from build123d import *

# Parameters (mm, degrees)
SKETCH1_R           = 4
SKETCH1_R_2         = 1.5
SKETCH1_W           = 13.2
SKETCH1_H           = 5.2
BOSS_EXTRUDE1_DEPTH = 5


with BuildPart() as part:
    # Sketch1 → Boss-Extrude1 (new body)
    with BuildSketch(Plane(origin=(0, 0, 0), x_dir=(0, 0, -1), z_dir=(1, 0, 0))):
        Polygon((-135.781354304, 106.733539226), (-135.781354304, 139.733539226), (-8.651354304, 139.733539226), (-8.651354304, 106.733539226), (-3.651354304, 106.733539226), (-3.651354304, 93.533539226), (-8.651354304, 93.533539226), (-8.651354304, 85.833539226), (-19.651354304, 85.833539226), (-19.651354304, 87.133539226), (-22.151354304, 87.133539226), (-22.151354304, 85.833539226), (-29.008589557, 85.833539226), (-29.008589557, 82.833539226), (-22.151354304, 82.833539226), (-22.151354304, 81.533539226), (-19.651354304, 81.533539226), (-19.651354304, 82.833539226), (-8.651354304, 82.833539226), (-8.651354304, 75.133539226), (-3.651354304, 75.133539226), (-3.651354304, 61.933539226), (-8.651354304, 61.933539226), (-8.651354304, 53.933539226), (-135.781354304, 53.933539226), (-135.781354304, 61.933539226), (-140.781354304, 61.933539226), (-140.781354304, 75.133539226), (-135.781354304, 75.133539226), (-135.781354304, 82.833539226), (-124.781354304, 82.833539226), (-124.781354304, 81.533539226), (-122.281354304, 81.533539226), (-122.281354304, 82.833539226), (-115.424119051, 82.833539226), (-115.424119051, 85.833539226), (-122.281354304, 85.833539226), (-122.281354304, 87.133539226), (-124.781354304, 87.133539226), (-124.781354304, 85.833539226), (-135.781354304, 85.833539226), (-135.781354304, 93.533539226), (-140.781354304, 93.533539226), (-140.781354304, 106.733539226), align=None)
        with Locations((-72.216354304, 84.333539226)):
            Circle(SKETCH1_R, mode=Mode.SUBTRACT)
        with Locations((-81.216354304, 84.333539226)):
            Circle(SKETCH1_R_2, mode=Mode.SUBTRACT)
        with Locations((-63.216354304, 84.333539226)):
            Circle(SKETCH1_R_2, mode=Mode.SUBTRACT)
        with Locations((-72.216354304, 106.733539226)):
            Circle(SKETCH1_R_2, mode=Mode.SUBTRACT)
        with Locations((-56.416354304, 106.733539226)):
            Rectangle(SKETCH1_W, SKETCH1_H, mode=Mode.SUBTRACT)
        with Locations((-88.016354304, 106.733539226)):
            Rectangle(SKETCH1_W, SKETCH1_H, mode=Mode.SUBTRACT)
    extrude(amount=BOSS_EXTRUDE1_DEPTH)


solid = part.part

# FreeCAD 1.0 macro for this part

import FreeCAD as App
import Part
import Sketcher
Q = App.Units.Quantity


def add_polygon(sketch, points):
    """Adds a closed chain of lines whose ends are joined by coincident constraints."""
    first, n = sketch.GeometryCount, len(points)
    for a, b in zip(points, points[1:] + points[:1]):
        sketch.addGeometry(Part.LineSegment(App.Vector(*a, 0), App.Vector(*b, 0)), False)
    for i in range(n):
        sketch.addConstraint(Sketcher.Constraint("Coincident", first + i, 2, first + (i + 1) % n, 1))

doc = App.newDocument("Part")
body = doc.addObject("PartDesign::Body", "Body")

sketch1 = body.newObject("Sketcher::SketchObject", "Sketch")
sketch1.AttachmentSupport = (doc.getObject("YZ_Plane"), [""])
sketch1.MapMode = "FlatFace"
add_polygon(sketch1, [(139.7, 135.8), (106.7, 135.8), (106.7, 140.8), (93.5, 140.8), (93.5, 135.8), (85.8, 135.8), (85.8, 124.8), (87.1, 124.8), (87.1, 122.3), (85.8, 122.3), (85.8, 115.4), (82.8, 115.4), (82.8, 122.3), (81.5, 122.3), (81.5, 124.8), (82.8, 124.8), (82.8, 135.8), (75.1, 135.8), (75.1, 140.8), (61.9, 140.8), (61.9, 135.8), (53.9, 135.8), (53.9, 8.7), (61.9, 8.7), (61.9, 3.7), (75.1, 3.7), (75.1, 8.7), (82.8, 8.7), (82.8, 19.7), (81.5, 19.7), (81.5, 22.2), (82.8, 22.2), (82.8, 29), (85.8, 29), (85.8, 22.2), (87.1, 22.2), (87.1, 19.7), (85.8, 19.7), (85.8, 8.7), (93.5, 8.7), (93.5, 3.7), (106.7, 3.7), (106.7, 8.7), (139.7, 8.7)])
sketch1.addGeometry(Part.Circle(App.Vector(84.3, 63.2, 0), App.Vector(0, 0, 1), 1.5), False)
sketch1.addGeometry(Part.Circle(App.Vector(84.3, 72.2, 0), App.Vector(0, 0, 1), 4), False)
sketch1.addGeometry(Part.Circle(App.Vector(84.3, 81.2, 0), App.Vector(0, 0, 1), 1.5), False)
add_polygon(sketch1, [(104.1, 63), (109.3, 63), (109.3, 49.8), (104.1, 49.8)])
sketch1.addGeometry(Part.Circle(App.Vector(106.7, 72.2, 0), App.Vector(0, 0, 1), 1.5), False)
add_polygon(sketch1, [(104.1, 94.6), (109.3, 94.6), (109.3, 81.4), (104.1, 81.4)])
sketch1.addConstraint([
    Sketcher.Constraint("Horizontal", 0),
    Sketcher.Constraint("Vertical", 1),
    Sketcher.Constraint("Horizontal", 2),
    Sketcher.Constraint("Vertical", 3),
    Sketcher.Constraint("Horizontal", 4),
    Sketcher.Constraint("Vertical", 5),
    Sketcher.Constraint("Horizontal", 6),
    Sketcher.Constraint("Vertical", 7),
    Sketcher.Constraint("Horizontal", 8),
    Sketcher.Constraint("Vertical", 9),
    Sketcher.Constraint("Horizontal", 10),
    Sketcher.Constraint("Vertical", 11),
    Sketcher.Constraint("Horizontal", 12),
    Sketcher.Constraint("Vertical", 13),
    Sketcher.Constraint("Horizontal", 14),
    Sketcher.Constraint("Vertical", 15),
    Sketcher.Constraint("Horizontal", 16),
    Sketcher.Constraint("Vertical", 17),
    Sketcher.Constraint("Horizontal", 18),
    Sketcher.Constraint("Vertical", 19),
    Sketcher.Constraint("Horizontal", 20),
    Sketcher.Constraint("Vertical", 21),
    Sketcher.Constraint("Horizontal", 22),
    Sketcher.Constraint("Vertical", 23),
    Sketcher.Constraint("Horizontal", 24),
    Sketcher.Constraint("Vertical", 25),
    Sketcher.Constraint("Horizontal", 26),
    Sketcher.Constraint("Vertical", 27),
    Sketcher.Constraint("Horizontal", 28),
    Sketcher.Constraint("Vertical", 29),
    Sketcher.Constraint("Horizontal", 30),
    Sketcher.Constraint("Vertical", 31),
    Sketcher.Constraint("Horizontal", 32),
    Sketcher.Constraint("Vertical", 33),
    Sketcher.Constraint("Horizontal", 34),
    Sketcher.Constraint("Vertical", 35),
    Sketcher.Constraint("Horizontal", 36),
    Sketcher.Constraint("Vertical", 37),
    Sketcher.Constraint("Horizontal", 38),
    Sketcher.Constraint("Vertical", 39),
    Sketcher.Constraint("Horizontal", 40),
    Sketcher.Constraint("Vertical", 41),
    Sketcher.Constraint("Horizontal", 42),
    Sketcher.Constraint("Vertical", 43),
    Sketcher.Constraint("Horizontal", 47),
    Sketcher.Constraint("Vertical", 48),
    Sketcher.Constraint("Horizontal", 49),
    Sketcher.Constraint("Vertical", 50),
    Sketcher.Constraint("Horizontal", 52),
    Sketcher.Constraint("Vertical", 53),
    Sketcher.Constraint("Horizontal", 54),
    Sketcher.Constraint("Vertical", 55),
    Sketcher.Constraint("Equal", 44, 46),
    Sketcher.Constraint("Equal", 46, 51),
    Sketcher.Constraint("Horizontal", 45, 3, 51, 3),
    Sketcher.Constraint("Horizontal", 0, 2, 3, 2),
    Sketcher.Constraint("Horizontal", 8, 2, 11, 2),
    Sketcher.Constraint("Horizontal", 6, 2, 13, 2),
    Sketcher.Constraint("Horizontal", 4, 2, 15, 2),
    Sketcher.Constraint("Horizontal", 2, 2, 17, 2),
    Sketcher.Constraint("Horizontal", 16, 2, 19, 2),
    Sketcher.Constraint("Horizontal", 22, 2, 25, 2),
    Sketcher.Constraint("Horizontal", 30, 2, 33, 2),
    Sketcher.Constraint("Horizontal", 28, 2, 35, 2),
    Sketcher.Constraint("Horizontal", 26, 2, 37, 2),
    Sketcher.Constraint("Horizontal", 24, 2, 39, 2),
    Sketcher.Constraint("Horizontal", 38, 2, 41, 2),
    Sketcher.Constraint("Vertical", 44, 3, 45, 3),
    Sketcher.Constraint("Vertical", 45, 3, 46, 3),
    Sketcher.Constraint("Vertical", 51, 3, 0, 2),
    Sketcher.Constraint("Vertical", 5, 2, 8, 2),
    Sketcher.Constraint("Vertical", 11, 2, 14, 2),
    Sketcher.Constraint("Vertical", 19, 2, 22, 2),
    Sketcher.Constraint("Vertical", 17, 2, 24, 2),
    Sketcher.Constraint("Vertical", 15, 2, 26, 2),
    Sketcher.Constraint("Vertical", 13, 2, 28, 2),
    Sketcher.Constraint("Vertical", 27, 2, 30, 2),
    Sketcher.Constraint("Vertical", 9, 2, 32, 2),
    Sketcher.Constraint("Vertical", 7, 2, 34, 2),
    Sketcher.Constraint("Vertical", 33, 2, 36, 2),
    Sketcher.Constraint("Vertical", 3, 2, 38, 2),
    Sketcher.Constraint("Vertical", 1, 2, 40, 2),
    Sketcher.Constraint("Vertical", 48, 2, 52, 2),
    Sketcher.Constraint("Vertical", 50, 2, 54, 2),
    Sketcher.Constraint("Equal", 8, 12),
    Sketcher.Constraint("Equal", 4, 16),
    Sketcher.Constraint("Equal", 2, 18),
    Sketcher.Constraint("Equal", 19, 23),
    Sketcher.Constraint("Equal", 15, 27),
    Sketcher.Constraint("Equal", 13, 29),
    Sketcher.Constraint("Equal", 11, 31),
    Sketcher.Constraint("Equal", 40, 48),
    Sketcher.Constraint("Equal", 50, 53),
    Sketcher.Constraint("Diameter", 44, Q("3 mm")),
    Sketcher.Constraint("Diameter", 45, Q("8 mm")),
    Sketcher.Constraint("DistanceX", 0, 2, 0, 1, Q("33 mm")),
    Sketcher.Constraint("DistanceX", 10, 2, 10, 1, Q("3 mm")),
    Sketcher.Constraint("DistanceX", 20, 2, 20, 1, Q("8 mm")),
    Sketcher.Constraint("DistanceY", 1, 1, 1, 2, Q("5 mm")),
    Sketcher.Constraint("DistanceY", 5, 2, 5, 1, Q("11 mm")),
    Sketcher.Constraint("DistanceX", 2, 2, 2, 1, Q("13.2 mm")),
    Sketcher.Constraint("DistanceX", 4, 2, 4, 1, Q("7.7 mm")),
    Sketcher.Constraint("DistanceX", 6, 1, 6, 2, Q("1.3 mm")),
    Sketcher.Constraint("DistanceX", 47, 1, 47, 2, Q("5.2 mm")),
    Sketcher.Constraint("DistanceY", 7, 2, 7, 1, Q("2.5 mm")),
    Sketcher.Constraint("DistanceY", 44, 3, 45, 3, Q("9 mm")),
    Sketcher.Constraint("DistanceY", 45, 3, 46, 3, Q("9 mm")),
    Sketcher.Constraint("DistanceX", 44, 3, 47, 2, Q("25 mm")),
    Sketcher.Constraint("DistanceY", 21, 2, 21, 1, Q("127.13 mm")),
    Sketcher.Constraint("DistanceX", 45, 3, 51, 3, Q("22.4 mm")),
    Sketcher.Constraint("DistanceY", 47, 2, 51, 3, Q("9.2 mm")),
    Sketcher.Constraint("DistanceY", 51, 3, 52, 2, Q("22.4 mm")),
    Sketcher.Constraint("DistanceY", 46, 3, 0, 2, Q("54.565 mm")),
    Sketcher.Constraint("DistanceY", 9, 2, 9, 1, Q("6.857235 mm")),
    Sketcher.Constraint("DistanceX", -1, 1, 44, 3, Q("84.333539 mm")),
    Sketcher.Constraint("DistanceY", -1, 1, 9, 2, Q("115.424119 mm")),
])
pad1 = body.newObject("PartDesign::Pad", "Pad")
pad1.Profile = sketch1
pad1.Length = 5

doc.recompute()
